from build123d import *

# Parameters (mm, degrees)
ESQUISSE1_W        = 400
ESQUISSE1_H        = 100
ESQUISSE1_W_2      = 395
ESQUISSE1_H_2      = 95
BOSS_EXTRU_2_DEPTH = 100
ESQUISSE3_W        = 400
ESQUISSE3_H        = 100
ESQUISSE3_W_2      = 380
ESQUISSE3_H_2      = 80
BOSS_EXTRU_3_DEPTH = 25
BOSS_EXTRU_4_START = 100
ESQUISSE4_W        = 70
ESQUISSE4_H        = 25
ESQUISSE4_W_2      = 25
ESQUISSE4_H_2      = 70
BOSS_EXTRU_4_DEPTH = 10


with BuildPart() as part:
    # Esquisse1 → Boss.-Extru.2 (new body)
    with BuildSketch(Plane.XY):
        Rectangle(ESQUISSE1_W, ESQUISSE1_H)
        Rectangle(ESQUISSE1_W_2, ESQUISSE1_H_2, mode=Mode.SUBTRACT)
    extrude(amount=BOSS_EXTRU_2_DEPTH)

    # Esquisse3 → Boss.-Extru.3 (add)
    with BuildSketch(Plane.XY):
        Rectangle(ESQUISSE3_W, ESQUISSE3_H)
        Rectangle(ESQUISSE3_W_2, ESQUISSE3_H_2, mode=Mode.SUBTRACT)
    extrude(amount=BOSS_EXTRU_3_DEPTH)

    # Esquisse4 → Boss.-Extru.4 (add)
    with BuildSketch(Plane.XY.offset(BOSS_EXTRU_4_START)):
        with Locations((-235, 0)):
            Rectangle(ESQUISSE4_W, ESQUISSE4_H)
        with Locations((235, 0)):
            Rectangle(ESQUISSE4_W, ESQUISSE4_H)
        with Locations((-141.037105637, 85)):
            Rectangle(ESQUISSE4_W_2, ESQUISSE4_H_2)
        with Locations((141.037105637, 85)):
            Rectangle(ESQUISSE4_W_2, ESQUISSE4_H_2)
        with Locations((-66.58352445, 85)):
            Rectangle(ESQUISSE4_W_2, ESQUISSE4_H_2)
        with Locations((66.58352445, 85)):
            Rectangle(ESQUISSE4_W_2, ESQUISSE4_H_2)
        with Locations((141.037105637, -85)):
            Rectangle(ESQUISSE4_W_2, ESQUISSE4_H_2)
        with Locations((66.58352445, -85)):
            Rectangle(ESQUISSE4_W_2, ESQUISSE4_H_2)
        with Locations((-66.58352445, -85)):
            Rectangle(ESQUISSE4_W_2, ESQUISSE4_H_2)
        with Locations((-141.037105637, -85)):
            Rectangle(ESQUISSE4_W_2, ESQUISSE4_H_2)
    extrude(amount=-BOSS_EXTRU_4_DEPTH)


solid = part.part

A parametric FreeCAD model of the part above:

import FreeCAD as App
import Part
import Sketcher
from FreeCAD import Vector
Q = App.Units.Quantity

doc = App.newDocument("Part")
body = doc.addObject("PartDesign::Body", "Body")

# Sketch on XY plane
sketch1 = body.newObject("Sketcher::SketchObject", "Sketch")
sketch1.AttachmentSupport = (doc.getObject("XY_Plane"), [""])
sketch1.MapMode = "FlatFace"
sketch1.addGeometry(Part.LineSegment(Vector(-200, 50, 0), Vector(-200, -50, 0)), False)
sketch1.addGeometry(Part.LineSegment(Vector(-200, -50, 0), Vector(200, -50, 0)), False)
sketch1.addGeometry(Part.LineSegment(Vector(200, -50, 0), Vector(200, 50, 0)), False)
sketch1.addGeometry(Part.LineSegment(Vector(200, 50, 0), Vector(-200, 50, 0)), False)
sketch1.addGeometry(Part.LineSegment(Vector(197.5, -47.5, 0), Vector(-197.5, -47.5, 0)), False)
sketch1.addGeometry(Part.LineSegment(Vector(-197.5, -47.5, 0), Vector(-197.5, 47.5, 0)), False)
sketch1.addGeometry(Part.LineSegment(Vector(-197.5, 47.5, 0), Vector(197.5, 47.5, 0)), False)
sketch1.addGeometry(Part.LineSegment(Vector(197.5, 47.5, 0), Vector(197.5, -47.5, 0)), False)
sketch1.addConstraint(Sketcher.Constraint("Coincident", 0, 2, 1, 1))
sketch1.addConstraint(Sketcher.Constraint("Coincident", 1, 2, 2, 1))
sketch1.addConstraint(Sketcher.Constraint("Coincident", 2, 2, 3, 1))
sketch1.addConstraint(Sketcher.Constraint("Coincident", 3, 2, 0, 1))
sketch1.addConstraint(Sketcher.Constraint("Coincident", 4, 2, 5, 1))
sketch1.addConstraint(Sketcher.Constraint("Coincident", 5, 2, 6, 1))
sketch1.addConstraint(Sketcher.Constraint("Coincident", 6, 2, 7, 1))
sketch1.addConstraint(Sketcher.Constraint("Coincident", 7, 2, 4, 1))
sketch1.addConstraint(Sketcher.Constraint("Vertical", 0))
sketch1.addConstraint(Sketcher.Constraint("Horizontal", 1))
sketch1.addConstraint(Sketcher.Constraint("Vertical", 2))
sketch1.addConstraint(Sketcher.Constraint("Horizontal", 3))
sketch1.addConstraint(Sketcher.Constraint("Horizontal", 4))
sketch1.addConstraint(Sketcher.Constraint("Vertical", 5))
sketch1.addConstraint(Sketcher.Constraint("Horizontal", 6))
sketch1.addConstraint(Sketcher.Constraint("Vertical", 7))
sketch1.addConstraint(Sketcher.Constraint("Symmetric", 0, 2, 2, 2, -1, 1))
sketch1.addConstraint(Sketcher.Constraint("Symmetric", 4, 2, 6, 2, -1, 1))
sketch1.addConstraint(Sketcher.Constraint("DistanceX", 1, 1, 1, 2, Q("400 mm")))
sketch1.addConstraint(Sketcher.Constraint("DistanceX", 4, 2, 4, 1, Q("395 mm")))
sketch1.addConstraint(Sketcher.Constraint("DistanceY", 0, 2, 0, 1, Q("100 mm")))
sketch1.addConstraint(Sketcher.Constraint("DistanceY", 5, 1, 5, 2, Q("95 mm")))
pad1 = body.newObject("PartDesign::Pad", "Pad")
pad1.Profile = sketch1
pad1.Length = 100

# Sketch on XY plane
sketch2 = body.newObject("Sketcher::SketchObject", "Sketch001")
sketch2.AttachmentSupport = (doc.getObject("XY_Plane"), [""])
sketch2.MapMode = "FlatFace"
sketch2.addGeometry(Part.LineSegment(Vector(-200, 50, 0), Vector(-200, -50, 0)), False)
sketch2.addGeometry(Part.LineSegment(Vector(-200, -50, 0), Vector(200, -50, 0)), False)
sketch2.addGeometry(Part.LineSegment(Vector(200, -50, 0), Vector(200, 50, 0)), False)
sketch2.addGeometry(Part.LineSegment(Vector(200, 50, 0), Vector(-200, 50, 0)), False)
sketch2.addGeometry(Part.LineSegment(Vector(190, -40, 0), Vector(-190, -40, 0)), False)
sketch2.addGeometry(Part.LineSegment(Vector(-190, -40, 0), Vector(-190, 40, 0)), False)
sketch2.addGeometry(Part.LineSegment(Vector(-190, 40, 0), Vector(190, 40, 0)), False)
sketch2.addGeometry(Part.LineSegment(Vector(190, 40, 0), Vector(190, -40, 0)), False)
sketch2.addConstraint(Sketcher.Constraint("Coincident", 0, 2, 1, 1))
sketch2.addConstraint(Sketcher.Constraint("Coincident", 1, 2, 2, 1))
sketch2.addConstraint(Sketcher.Constraint("Coincident", 2, 2, 3, 1))
sketch2.addConstraint(Sketcher.Constraint("Coincident", 3, 2, 0, 1))
sketch2.addConstraint(Sketcher.Constraint("Coincident", 4, 2, 5, 1))
sketch2.addConstraint(Sketcher.Constraint("Coincident", 5, 2, 6, 1))
sketch2.addConstraint(Sketcher.Constraint("Coincident", 6, 2, 7, 1))
sketch2.addConstraint(Sketcher.Constraint("Coincident", 7, 2, 4, 1))
sketch2.addConstraint(Sketcher.Constraint("Vertical", 0))
sketch2.addConstraint(Sketcher.Constraint("Horizontal", 1))
sketch2.addConstraint(Sketcher.Constraint("Vertical", 2))
sketch2.addConstraint(Sketcher.Constraint("Horizontal", 3))
sketch2.addConstraint(Sketcher.Constraint("Horizontal", 4))
sketch2.addConstraint(Sketcher.Constraint("Vertical", 5))
sketch2.addConstraint(Sketcher.Constraint("Horizontal", 6))
sketch2.addConstraint(Sketcher.Constraint("Vertical", 7))
sketch2.addConstraint(Sketcher.Constraint("Symmetric", 0, 2, 2, 2, -1, 1))
sketch2.addConstraint(Sketcher.Constraint("Symmetric", 4, 2, 6, 2, -1, 1))
sketch2.addConstraint(Sketcher.Constraint("DistanceX", 1, 1, 1, 2, Q("400 mm")))
sketch2.addConstraint(Sketcher.Constraint("DistanceX", 4, 2, 4, 1, Q("380 mm")))
sketch2.addConstraint(Sketcher.Constraint("DistanceY", 0, 2, 0, 1, Q("100 mm")))
sketch2.addConstraint(Sketcher.Constraint("DistanceY", 5, 1, 5, 2, Q("80 mm")))
pad2 = body.newObject("PartDesign::Pad", "Pad001")
pad2.Profile = sketch2
pad2.Length = 25

# Sketch on XY plane
sketch3 = body.newObject("Sketcher::SketchObject", "Sketch002")
sketch3.AttachmentSupport = (doc.getObject("XY_Plane"), [""])
sketch3.MapMode = "FlatFace"
sketch3.AttachmentOffset = App.Placement(Vector(0, 0, 100), App.Rotation())
sketch3.addGeometry(Part.LineSegment(Vector(-270, 12.5, 0), Vector(-270, -12.5, 0)), False)
sketch3.addGeometry(Part.LineSegment(Vector(-270, -12.5, 0), Vector(-200, -12.5, 0)), False)
sketch3.addGeometry(Part.LineSegment(Vector(-200, -12.5, 0), Vector(-200, 12.5, 0)), False)
sketch3.addGeometry(Part.LineSegment(Vector(-200, 12.5, 0), Vector(-270, 12.5, 0)), False)
sketch3.addGeometry(Part.LineSegment(Vector(200, 12.5, 0), Vector(200, -12.5, 0)), False)
sketch3.addGeometry(Part.LineSegment(Vector(200, -12.5, 0), Vector(270, -12.5, 0)), False)
sketch3.addGeometry(Part.LineSegment(Vector(270, -12.5, 0), Vector(270, 12.5, 0)), False)
sketch3.addGeometry(Part.LineSegment(Vector(270, 12.5, 0), Vector(200, 12.5, 0)), False)
sketch3.addGeometry(Part.LineSegment(Vector(-153.537106, 120, 0), Vector(-153.537106, 50, 0)), False)
sketch3.addGeometry(Part.LineSegment(Vector(-153.537106, 50, 0), Vector(-128.537106, 50, 0)), False)
sketch3.addGeometry(Part.LineSegment(Vector(-128.537106, 50, 0), Vector(-128.537106, 120, 0)), False)
sketch3.addGeometry(Part.LineSegment(Vector(-128.537106, 120, 0), Vector(-153.537106, 120, 0)), False)
sketch3.addGeometry(Part.LineSegment(Vector(128.537106, 120, 0), Vector(128.537106, 50, 0)), False)
sketch3.addGeometry(Part.LineSegment(Vector(128.537106, 50, 0), Vector(153.537106, 50, 0)), False)
sketch3.addGeometry(Part.LineSegment(Vector(153.537106, 50, 0), Vector(153.537106, 120, 0)), False)
sketch3.addGeometry(Part.LineSegment(Vector(153.537106, 120, 0), Vector(128.537106, 120, 0)), False)
sketch3.addGeometry(Part.LineSegment(Vector(-79.083524, 120, 0), Vector(-79.083524, 50, 0)), False)
sketch3.addGeometry(Part.LineSegment(Vector(-79.083524, 50, 0), Vector(-54.083524, 50, 0)), False)
sketch3.addGeometry(Part.LineSegment(Vector(-54.083524, 50, 0), Vector(-54.083524, 120, 0)), False)
sketch3.addGeometry(Part.LineSegment(Vector(-54.083524, 120, 0), Vector(-79.083524, 120, 0)), False)
sketch3.addGeometry(Part.LineSegment(Vector(54.083524, 120, 0), Vector(54.083524, 50, 0)), False)
sketch3.addGeometry(Part.LineSegment(Vector(54.083524, 50, 0), Vector(79.083524, 50, 0)), False)
sketch3.addGeometry(Part.LineSegment(Vector(79.083524, 50, 0), Vector(79.083524, 120, 0)), False)
sketch3.addGeometry(Part.LineSegment(Vector(79.083524, 120, 0), Vector(54.083524, 120, 0)), False)
sketch3.addGeometry(Part.LineSegment(Vector(128.537106, -50, 0), Vector(128.537106, -120, 0)), False)
sketch3.addGeometry(Part.LineSegment(Vector(128.537106, -120, 0), Vector(153.537106, -120, 0)), False)
sketch3.addGeometry(Part.LineSegment(Vector(153.537106, -120, 0), Vector(153.537106, -50, 0)), False)
sketch3.addGeometry(Part.LineSegment(Vector(153.537106, -50, 0), Vector(128.537106, -50, 0)), False)
sketch3.addGeometry(Part.LineSegment(Vector(54.083524, -50, 0), Vector(54.083524, -120, 0)), False)
sketch3.addGeometry(Part.LineSegment(Vector(54.083524, -120, 0), Vector(79.083524, -120, 0)), False)
sketch3.addGeometry(Part.LineSegment(Vector(79.083524, -120, 0), Vector(79.083524, -50, 0)), False)
sketch3.addGeometry(Part.LineSegment(Vector(79.083524, -50, 0), Vector(54.083524, -50, 0)), False)
sketch3.addGeometry(Part.LineSegment(Vector(-79.083524, -50, 0), Vector(-79.083524, -120, 0)), False)
sketch3.addGeometry(Part.LineSegment(Vector(-79.083524, -120, 0), Vector(-54.083524, -120, 0)), False)
sketch3.addGeometry(Part.LineSegment(Vector(-54.083524, -120, 0), Vector(-54.083524, -50, 0)), False)
sketch3.addGeometry(Part.LineSegment(Vector(-54.083524, -50, 0), Vector(-79.083524, -50, 0)), False)
sketch3.addGeometry(Part.LineSegment(Vector(-153.537106, -50, 0), Vector(-153.537106, -120, 0)), False)
sketch3.addGeometry(Part.LineSegment(Vector(-153.537106, -120, 0), Vector(-128.537106, -120, 0)), False)
sketch3.addGeometry(Part.LineSegment(Vector(-128.537106, -120, 0), Vector(-128.537106, -50, 0)), False)
sketch3.addGeometry(Part.LineSegment(Vector(-128.537106, -50, 0), Vector(-153.537106, -50, 0)), False)
sketch3.addConstraint(Sketcher.Constraint("Coincident", 0, 2, 1, 1))
sketch3.addConstraint(Sketcher.Constraint("Coincident", 1, 2, 2, 1))
sketch3.addConstraint(Sketcher.Constraint("Coincident", 2, 2, 3, 1))
sketch3.addConstraint(Sketcher.Constraint("Coincident", 3, 2, 0, 1))
sketch3.addConstraint(Sketcher.Constraint("Coincident", 4, 2, 5, 1))
sketch3.addConstraint(Sketcher.Constraint("Coincident", 5, 2, 6, 1))
sketch3.addConstraint(Sketcher.Constraint("Coincident", 6, 2, 7, 1))
sketch3.addConstraint(Sketcher.Constraint("Coincident", 7, 2, 4, 1))
sketch3.addConstraint(Sketcher.Constraint("Coincident", 8, 2, 9, 1))
sketch3.addConstraint(Sketcher.Constraint("Coincident", 9, 2, 10, 1))
sketch3.addConstraint(Sketcher.Constraint("Coincident", 10, 2, 11, 1))
sketch3.addConstraint(Sketcher.Constraint("Coincident", 11, 2, 8, 1))
sketch3.addConstraint(Sketcher.Constraint("Coincident", 12, 2, 13, 1))
sketch3.addConstraint(Sketcher.Constraint("Coincident", 13, 2, 14, 1))
sketch3.addConstraint(Sketcher.Constraint("Coincident", 14, 2, 15, 1))
sketch3.addConstraint(Sketcher.Constraint("Coincident", 15, 2, 12, 1))
sketch3.addConstraint(Sketcher.Constraint("Coincident", 16, 2, 17, 1))
sketch3.addConstraint(Sketcher.Constraint("Coincident", 17, 2, 18, 1))
sketch3.addConstraint(Sketcher.Constraint("Coincident", 18, 2, 19, 1))
sketch3.addConstraint(Sketcher.Constraint("Coincident", 19, 2, 16, 1))
sketch3.addConstraint(Sketcher.Constraint("Coincident", 20, 2, 21, 1))
sketch3.addConstraint(Sketcher.Constraint("Coincident", 21, 2, 22, 1))
sketch3.addConstraint(Sketcher.Constraint("Coincident", 22, 2, 23, 1))
sketch3.addConstraint(Sketcher.Constraint("Coincident", 23, 2, 20, 1))
sketch3.addConstraint(Sketcher.Constraint("Coincident", 24, 2, 25, 1))
sketch3.addConstraint(Sketcher.Constraint("Coincident", 25, 2, 26, 1))
sketch3.addConstraint(Sketcher.Constraint("Coincident", 26, 2, 27, 1))
sketch3.addConstraint(Sketcher.Constraint("Coincident", 27, 2, 24, 1))
sketch3.addConstraint(Sketcher.Constraint("Coincident", 28, 2, 29, 1))
sketch3.addConstraint(Sketcher.Constraint("Coincident", 29, 2, 30, 1))
sketch3.addConstraint(Sketcher.Constraint("Coincident", 30, 2, 31, 1))
sketch3.addConstraint(Sketcher.Constraint("Coincident", 31, 2, 28, 1))
sketch3.addConstraint(Sketcher.Constraint("Coincident", 32, 2, 33, 1))
sketch3.addConstraint(Sketcher.Constraint("Coincident", 33, 2, 34, 1))
sketch3.addConstraint(Sketcher.Constraint("Coincident", 34, 2, 35, 1))
sketch3.addConstraint(Sketcher.Constraint("Coincident", 35, 2, 32, 1))
sketch3.addConstraint(Sketcher.Constraint("Coincident", 36, 2, 37, 1))
sketch3.addConstraint(Sketcher.Constraint("Coincident", 37, 2, 38, 1))
sketch3.addConstraint(Sketcher.Constraint("Coincident", 38, 2, 39, 1))
sketch3.addConstraint(Sketcher.Constraint("Coincident", 39, 2, 36, 1))
sketch3.addConstraint(Sketcher.Constraint("Vertical", 0))
sketch3.addConstraint(Sketcher.Constraint("Horizontal", 1))
sketch3.addConstraint(Sketcher.Constraint("Vertical", 2))
sketch3.addConstraint(Sketcher.Constraint("Horizontal", 3))
sketch3.addConstraint(Sketcher.Constraint("Vertical", 4))
sketch3.addConstraint(Sketcher.Constraint("Horizontal", 5))
sketch3.addConstraint(Sketcher.Constraint("Vertical", 6))
sketch3.addConstraint(Sketcher.Constraint("Horizontal", 7))
sketch3.addConstraint(Sketcher.Constraint("Vertical", 8))
sketch3.addConstraint(Sketcher.Constraint("Horizontal", 9))
sketch3.addConstraint(Sketcher.Constraint("Vertical", 10))
sketch3.addConstraint(Sketcher.Constraint("Horizontal", 11))
sketch3.addConstraint(Sketcher.Constraint("Vertical", 12))
sketch3.addConstraint(Sketcher.Constraint("Horizontal", 13))
sketch3.addConstraint(Sketcher.Constraint("Vertical", 14))
sketch3.addConstraint(Sketcher.Constraint("Horizontal", 15))
sketch3.addConstraint(Sketcher.Constraint("Vertical", 16))
sketch3.addConstraint(Sketcher.Constraint("Horizontal", 17))
sketch3.addConstraint(Sketcher.Constraint("Vertical", 18))
sketch3.addConstraint(Sketcher.Constraint("Horizontal", 19))
sketch3.addConstraint(Sketcher.Constraint("Vertical", 20))
sketch3.addConstraint(Sketcher.Constraint("Horizontal", 21))
sketch3.addConstraint(Sketcher.Constraint("Vertical", 22))
sketch3.addConstraint(Sketcher.Constraint("Horizontal", 23))
sketch3.addConstraint(Sketcher.Constraint("Vertical", 24))
sketch3.addConstraint(Sketcher.Constraint("Horizontal", 25))
sketch3.addConstraint(Sketcher.Constraint("Vertical", 26))
sketch3.addConstraint(Sketcher.Constraint("Horizontal", 27))
sketch3.addConstraint(Sketcher.Constraint("Vertical", 28))
sketch3.addConstraint(Sketcher.Constraint("Horizontal", 29))
sketch3.addConstraint(Sketcher.Constraint("Vertical", 30))
sketch3.addConstraint(Sketcher.Constraint("Horizontal", 31))
sketch3.addConstraint(Sketcher.Constraint("Vertical", 32))
sketch3.addConstraint(Sketcher.Constraint("Horizontal", 33))
sketch3.addConstraint(Sketcher.Constraint("Vertical", 34))
sketch3.addConstraint(Sketcher.Constraint("Horizontal", 35))
sketch3.addConstraint(Sketcher.Constraint("Vertical", 36))
sketch3.addConstraint(Sketcher.Constraint("Horizontal", 37))
sketch3.addConstraint(Sketcher.Constraint("Vertical", 38))
sketch3.addConstraint(Sketcher.Constraint("Horizontal", 39))
sketch3.addConstraint(Sketcher.Constraint("Symmetric", 2, 2, 4, 2, -1, 1))
sketch3.addConstraint(Sketcher.Constraint("Symmetric", 0, 2, 6, 2, -1, 1))
sketch3.addConstraint(Sketcher.Constraint("Symmetric", 10, 2, 24, 2, -1, 1))
sketch3.addConstraint(Sketcher.Constraint("Symmetric", 8, 2, 26, 2, -1, 1))
sketch3.addConstraint(Sketcher.Constraint("Symmetric", 18, 2, 28, 2, -1, 1))
sketch3.addConstraint(Sketcher.Constraint("Symmetric", 16, 2, 30, 2, -1, 1))
sketch3.addConstraint(Sketcher.Constraint("Symmetric", 22, 2, 32, 2, -1, 1))
sketch3.addConstraint(Sketcher.Constraint("Symmetric", 20, 2, 34, 2, -1, 1))
sketch3.addConstraint(Sketcher.Constraint("Symmetric", 14, 2, 36, 2, -1, 1))
sketch3.addConstraint(Sketcher.Constraint("Symmetric", 12, 2, 38, 2, -1, 1))
sketch3.addConstraint(Sketcher.Constraint("Symmetric", 9, 2, 12, 2, -2))
sketch3.addConstraint(Sketcher.Constraint("Symmetric", 11, 2, 14, 2, -2))
sketch3.addConstraint(Sketcher.Constraint("Symmetric", 17, 2, 20, 2, -2))
sketch3.addConstraint(Sketcher.Constraint("Symmetric", 19, 2, 22, 2, -2))
sketch3.addConstraint(Sketcher.Constraint("Horizontal", 1, 2, 4, 2))
sketch3.addConstraint(Sketcher.Constraint("Horizontal", 13, 2, 16, 2))
sketch3.addConstraint(Sketcher.Constraint("Horizontal", 15, 2, 18, 2))
sketch3.addConstraint(Sketcher.Constraint("Equal", 15, 17))
sketch3.addConstraint(Sketcher.Constraint("Equal", 39, 0))
sketch3.addConstraint(Sketcher.Constraint("Equal", 7, 8))
sketch3.addConstraint(Sketcher.Constraint("DistanceX", 1, 1, 1, 2, Q("70 mm")))
sketch3.addConstraint(Sketcher.Constraint("DistanceX", 9, 1, 9, 2, Q("25 mm")))
sketch3.addConstraint(Sketcher.Constraint("DistanceX", 0, 2, -1, 1, Q("270 mm")))
sketch3.addConstraint(Sketcher.Constraint("DistanceY", -1, 1, 8, 2, Q("50 mm")))
sketch3.addConstraint(Sketcher.Constraint("DistanceX", 9, 2, 12, 2, Q("257.074211 mm")))
sketch3.addConstraint(Sketcher.Constraint("DistanceX", 9, 2, 16, 2, Q("49.453581 mm")))
pad3 = body.newObject("PartDesign::Pad", "Pad002")
pad3.Profile = sketch3
pad3.Length = 10
pad3.Reversed = True

doc.recompute()
